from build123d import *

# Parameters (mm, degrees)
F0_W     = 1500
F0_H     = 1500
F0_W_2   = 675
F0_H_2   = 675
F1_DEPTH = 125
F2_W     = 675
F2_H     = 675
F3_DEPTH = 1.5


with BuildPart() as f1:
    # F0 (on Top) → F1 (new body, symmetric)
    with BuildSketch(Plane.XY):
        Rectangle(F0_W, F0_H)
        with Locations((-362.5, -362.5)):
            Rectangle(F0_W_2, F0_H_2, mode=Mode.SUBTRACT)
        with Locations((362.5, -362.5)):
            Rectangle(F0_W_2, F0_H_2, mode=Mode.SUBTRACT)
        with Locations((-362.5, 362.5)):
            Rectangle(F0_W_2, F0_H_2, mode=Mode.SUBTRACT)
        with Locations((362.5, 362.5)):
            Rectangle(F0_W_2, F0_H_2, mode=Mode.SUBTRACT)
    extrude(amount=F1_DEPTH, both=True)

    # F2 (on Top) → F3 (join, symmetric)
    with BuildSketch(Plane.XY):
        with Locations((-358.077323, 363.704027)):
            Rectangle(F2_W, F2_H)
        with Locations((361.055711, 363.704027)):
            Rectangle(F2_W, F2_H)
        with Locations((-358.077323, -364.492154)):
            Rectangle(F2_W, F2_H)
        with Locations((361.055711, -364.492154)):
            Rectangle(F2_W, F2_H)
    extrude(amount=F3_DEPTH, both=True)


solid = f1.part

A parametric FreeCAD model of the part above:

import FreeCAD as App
import Part
import Sketcher


def add_polygon(sketch, points):
    """Adds a closed chain of lines whose ends are joined by coincident constraints."""
    first, n = sketch.GeometryCount, len(points)
    for a, b in zip(points, points[1:] + points[:1]):
        sketch.addGeometry(Part.LineSegment(App.Vector(*a, 0), App.Vector(*b, 0)), False)
    for i in range(n):
        sketch.addConstraint(Sketcher.Constraint("Coincident", first + i, 2, first + (i + 1) % n, 1))

doc = App.newDocument("Part")
body = doc.addObject("PartDesign::Body", "Body")

# Sketch on XY plane
sketch1 = body.newObject("Sketcher::SketchObject", "Sketch")
sketch1.AttachmentSupport = (doc.getObject("XY_Plane"), [""])
sketch1.MapMode = "FlatFace"
add_polygon(sketch1, [(-750, 750), (-750, -750), (750, -750), (750, 750)])  # lines 0-3
add_polygon(sketch1, [(-25, -700), (-700, -700), (-700, -25), (-25, -25)])  # lines 4-7
add_polygon(sketch1, [(700, -700), (25, -700), (25, -25), (700, -25)])  # lines 8-11
add_polygon(sketch1, [(-25, 25), (-700, 25), (-700, 700), (-25, 700)])  # lines 12-15
add_polygon(sketch1, [(700, 25), (25, 25), (25, 700), (700, 700)])  # lines 16-19
sketch1.addConstraint([
    Sketcher.Constraint("Vertical", 0),
    Sketcher.Constraint("Horizontal", 1),
    Sketcher.Constraint("Vertical", 2),
    Sketcher.Constraint("Horizontal", 3),
    Sketcher.Constraint("Horizontal", 4),
    Sketcher.Constraint("Vertical", 5),
    Sketcher.Constraint("Horizontal", 6),
    Sketcher.Constraint("Vertical", 7),
    Sketcher.Constraint("Horizontal", 8),
    Sketcher.Constraint("Vertical", 9),
    Sketcher.Constraint("Horizontal", 10),
    Sketcher.Constraint("Vertical", 11),
    Sketcher.Constraint("Horizontal", 12),
    Sketcher.Constraint("Vertical", 13),
    Sketcher.Constraint("Horizontal", 14),
    Sketcher.Constraint("Vertical", 15),
    Sketcher.Constraint("Horizontal", 16),
    Sketcher.Constraint("Vertical", 17),
    Sketcher.Constraint("Horizontal", 18),
    Sketcher.Constraint("Vertical", 19),
    Sketcher.Constraint("Symmetric", 0, 2, 2, 2, -1, 1),
    Sketcher.Constraint("Symmetric", 10, 2, 12, 2, -1, 1),
    Sketcher.Constraint("Symmetric", 8, 2, 14, 2, -1, 1),
    Sketcher.Constraint("Symmetric", 6, 2, 16, 2, -1, 1),
    Sketcher.Constraint("Symmetric", 4, 2, 18, 2, -1, 1),
    Sketcher.Constraint("Symmetric", 7, 2, 8, 2, -2),
    Sketcher.Constraint("Symmetric", 5, 2, 10, 2, -2),
    Sketcher.Constraint("Equal", 3, 0),
    Sketcher.Constraint("Equal", 18, 5),
    Sketcher.Constraint("DistanceX", 1, 1, 1, 2, 1500.0),
    Sketcher.Constraint("DistanceX", 4, 2, 4, 1, 675.0),
    Sketcher.Constraint("DistanceX", 4, 2, -1, 1, 700.0),
    Sketcher.Constraint("DistanceY", 4, 2, -1, 1, 700.0),
])
pad1 = body.newObject("PartDesign::Pad", "Pad")
pad1.Profile = sketch1
pad1.Length = 250
pad1.Midplane = True

# Sketch on XY plane
sketch2 = body.newObject("Sketcher::SketchObject", "Sketch001")
sketch2.AttachmentSupport = (doc.getObject("XY_Plane"), [""])
sketch2.MapMode = "FlatFace"
add_polygon(sketch2, [(-696, 701), (-696, 26), (-21, 26), (-21, 701)])  # lines 0-3
add_polygon(sketch2, [(24, 701), (24, 26), (699, 26), (699, 701)])  # lines 4-7
add_polygon(sketch2, [(-696, -27), (-696, -702), (-21, -702), (-21, -27)])  # lines 8-11
add_polygon(sketch2, [(24, -27), (24, -702), (699, -702), (699, -27)])  # lines 12-15
sketch2.addConstraint([
    Sketcher.Constraint("Vertical", 0),
    Sketcher.Constraint("Horizontal", 1),
    Sketcher.Constraint("Vertical", 2),
    Sketcher.Constraint("Horizontal", 3),
    Sketcher.Constraint("Vertical", 4),
    Sketcher.Constraint("Horizontal", 5),
    Sketcher.Constraint("Vertical", 6),
    Sketcher.Constraint("Horizontal", 7),
    Sketcher.Constraint("Vertical", 8),
    Sketcher.Constraint("Horizontal", 9),
    Sketcher.Constraint("Vertical", 10),
    Sketcher.Constraint("Horizontal", 11),
    Sketcher.Constraint("Vertical", 12),
    Sketcher.Constraint("Horizontal", 13),
    Sketcher.Constraint("Vertical", 14),
    Sketcher.Constraint("Horizontal", 15),
    Sketcher.Constraint("Horizontal", 1, 2, 4, 2),
    Sketcher.Constraint("Horizontal", 3, 2, 6, 2),
    Sketcher.Constraint("Horizontal", 9, 2, 12, 2),
    Sketcher.Constraint("Horizontal", 11, 2, 14, 2),
    Sketcher.Constraint("Vertical", 3, 2, 8, 2),
    Sketcher.Constraint("Vertical", 2, 2, 9, 2),
    Sketcher.Constraint("Vertical", 7, 2, 12, 2),
    Sketcher.Constraint("Vertical", 6, 2, 13, 2),
    Sketcher.Constraint("Equal", 3, 5),
    Sketcher.Constraint("Equal", 15, 0),
    Sketcher.Constraint("Equal", 6, 8),
    Sketcher.Constraint("DistanceX", 1, 1, 1, 2, 675.0),
    Sketcher.Constraint("DistanceX", -1, 1, 4, 2, 23.555711),
    Sketcher.Constraint("DistanceY", 8, 2, 0, 2, 728.196181),
    Sketcher.Constraint("DistanceX", 0, 2, -1, 1, 695.577323),
    Sketcher.Constraint("DistanceY", -1, 1, 0, 2, 26.204027),
])
pad2 = body.newObject("PartDesign::Pad", "Pad001")
pad2.Profile = sketch2
pad2.Length = 3
pad2.Midplane = True

doc.recompute()
